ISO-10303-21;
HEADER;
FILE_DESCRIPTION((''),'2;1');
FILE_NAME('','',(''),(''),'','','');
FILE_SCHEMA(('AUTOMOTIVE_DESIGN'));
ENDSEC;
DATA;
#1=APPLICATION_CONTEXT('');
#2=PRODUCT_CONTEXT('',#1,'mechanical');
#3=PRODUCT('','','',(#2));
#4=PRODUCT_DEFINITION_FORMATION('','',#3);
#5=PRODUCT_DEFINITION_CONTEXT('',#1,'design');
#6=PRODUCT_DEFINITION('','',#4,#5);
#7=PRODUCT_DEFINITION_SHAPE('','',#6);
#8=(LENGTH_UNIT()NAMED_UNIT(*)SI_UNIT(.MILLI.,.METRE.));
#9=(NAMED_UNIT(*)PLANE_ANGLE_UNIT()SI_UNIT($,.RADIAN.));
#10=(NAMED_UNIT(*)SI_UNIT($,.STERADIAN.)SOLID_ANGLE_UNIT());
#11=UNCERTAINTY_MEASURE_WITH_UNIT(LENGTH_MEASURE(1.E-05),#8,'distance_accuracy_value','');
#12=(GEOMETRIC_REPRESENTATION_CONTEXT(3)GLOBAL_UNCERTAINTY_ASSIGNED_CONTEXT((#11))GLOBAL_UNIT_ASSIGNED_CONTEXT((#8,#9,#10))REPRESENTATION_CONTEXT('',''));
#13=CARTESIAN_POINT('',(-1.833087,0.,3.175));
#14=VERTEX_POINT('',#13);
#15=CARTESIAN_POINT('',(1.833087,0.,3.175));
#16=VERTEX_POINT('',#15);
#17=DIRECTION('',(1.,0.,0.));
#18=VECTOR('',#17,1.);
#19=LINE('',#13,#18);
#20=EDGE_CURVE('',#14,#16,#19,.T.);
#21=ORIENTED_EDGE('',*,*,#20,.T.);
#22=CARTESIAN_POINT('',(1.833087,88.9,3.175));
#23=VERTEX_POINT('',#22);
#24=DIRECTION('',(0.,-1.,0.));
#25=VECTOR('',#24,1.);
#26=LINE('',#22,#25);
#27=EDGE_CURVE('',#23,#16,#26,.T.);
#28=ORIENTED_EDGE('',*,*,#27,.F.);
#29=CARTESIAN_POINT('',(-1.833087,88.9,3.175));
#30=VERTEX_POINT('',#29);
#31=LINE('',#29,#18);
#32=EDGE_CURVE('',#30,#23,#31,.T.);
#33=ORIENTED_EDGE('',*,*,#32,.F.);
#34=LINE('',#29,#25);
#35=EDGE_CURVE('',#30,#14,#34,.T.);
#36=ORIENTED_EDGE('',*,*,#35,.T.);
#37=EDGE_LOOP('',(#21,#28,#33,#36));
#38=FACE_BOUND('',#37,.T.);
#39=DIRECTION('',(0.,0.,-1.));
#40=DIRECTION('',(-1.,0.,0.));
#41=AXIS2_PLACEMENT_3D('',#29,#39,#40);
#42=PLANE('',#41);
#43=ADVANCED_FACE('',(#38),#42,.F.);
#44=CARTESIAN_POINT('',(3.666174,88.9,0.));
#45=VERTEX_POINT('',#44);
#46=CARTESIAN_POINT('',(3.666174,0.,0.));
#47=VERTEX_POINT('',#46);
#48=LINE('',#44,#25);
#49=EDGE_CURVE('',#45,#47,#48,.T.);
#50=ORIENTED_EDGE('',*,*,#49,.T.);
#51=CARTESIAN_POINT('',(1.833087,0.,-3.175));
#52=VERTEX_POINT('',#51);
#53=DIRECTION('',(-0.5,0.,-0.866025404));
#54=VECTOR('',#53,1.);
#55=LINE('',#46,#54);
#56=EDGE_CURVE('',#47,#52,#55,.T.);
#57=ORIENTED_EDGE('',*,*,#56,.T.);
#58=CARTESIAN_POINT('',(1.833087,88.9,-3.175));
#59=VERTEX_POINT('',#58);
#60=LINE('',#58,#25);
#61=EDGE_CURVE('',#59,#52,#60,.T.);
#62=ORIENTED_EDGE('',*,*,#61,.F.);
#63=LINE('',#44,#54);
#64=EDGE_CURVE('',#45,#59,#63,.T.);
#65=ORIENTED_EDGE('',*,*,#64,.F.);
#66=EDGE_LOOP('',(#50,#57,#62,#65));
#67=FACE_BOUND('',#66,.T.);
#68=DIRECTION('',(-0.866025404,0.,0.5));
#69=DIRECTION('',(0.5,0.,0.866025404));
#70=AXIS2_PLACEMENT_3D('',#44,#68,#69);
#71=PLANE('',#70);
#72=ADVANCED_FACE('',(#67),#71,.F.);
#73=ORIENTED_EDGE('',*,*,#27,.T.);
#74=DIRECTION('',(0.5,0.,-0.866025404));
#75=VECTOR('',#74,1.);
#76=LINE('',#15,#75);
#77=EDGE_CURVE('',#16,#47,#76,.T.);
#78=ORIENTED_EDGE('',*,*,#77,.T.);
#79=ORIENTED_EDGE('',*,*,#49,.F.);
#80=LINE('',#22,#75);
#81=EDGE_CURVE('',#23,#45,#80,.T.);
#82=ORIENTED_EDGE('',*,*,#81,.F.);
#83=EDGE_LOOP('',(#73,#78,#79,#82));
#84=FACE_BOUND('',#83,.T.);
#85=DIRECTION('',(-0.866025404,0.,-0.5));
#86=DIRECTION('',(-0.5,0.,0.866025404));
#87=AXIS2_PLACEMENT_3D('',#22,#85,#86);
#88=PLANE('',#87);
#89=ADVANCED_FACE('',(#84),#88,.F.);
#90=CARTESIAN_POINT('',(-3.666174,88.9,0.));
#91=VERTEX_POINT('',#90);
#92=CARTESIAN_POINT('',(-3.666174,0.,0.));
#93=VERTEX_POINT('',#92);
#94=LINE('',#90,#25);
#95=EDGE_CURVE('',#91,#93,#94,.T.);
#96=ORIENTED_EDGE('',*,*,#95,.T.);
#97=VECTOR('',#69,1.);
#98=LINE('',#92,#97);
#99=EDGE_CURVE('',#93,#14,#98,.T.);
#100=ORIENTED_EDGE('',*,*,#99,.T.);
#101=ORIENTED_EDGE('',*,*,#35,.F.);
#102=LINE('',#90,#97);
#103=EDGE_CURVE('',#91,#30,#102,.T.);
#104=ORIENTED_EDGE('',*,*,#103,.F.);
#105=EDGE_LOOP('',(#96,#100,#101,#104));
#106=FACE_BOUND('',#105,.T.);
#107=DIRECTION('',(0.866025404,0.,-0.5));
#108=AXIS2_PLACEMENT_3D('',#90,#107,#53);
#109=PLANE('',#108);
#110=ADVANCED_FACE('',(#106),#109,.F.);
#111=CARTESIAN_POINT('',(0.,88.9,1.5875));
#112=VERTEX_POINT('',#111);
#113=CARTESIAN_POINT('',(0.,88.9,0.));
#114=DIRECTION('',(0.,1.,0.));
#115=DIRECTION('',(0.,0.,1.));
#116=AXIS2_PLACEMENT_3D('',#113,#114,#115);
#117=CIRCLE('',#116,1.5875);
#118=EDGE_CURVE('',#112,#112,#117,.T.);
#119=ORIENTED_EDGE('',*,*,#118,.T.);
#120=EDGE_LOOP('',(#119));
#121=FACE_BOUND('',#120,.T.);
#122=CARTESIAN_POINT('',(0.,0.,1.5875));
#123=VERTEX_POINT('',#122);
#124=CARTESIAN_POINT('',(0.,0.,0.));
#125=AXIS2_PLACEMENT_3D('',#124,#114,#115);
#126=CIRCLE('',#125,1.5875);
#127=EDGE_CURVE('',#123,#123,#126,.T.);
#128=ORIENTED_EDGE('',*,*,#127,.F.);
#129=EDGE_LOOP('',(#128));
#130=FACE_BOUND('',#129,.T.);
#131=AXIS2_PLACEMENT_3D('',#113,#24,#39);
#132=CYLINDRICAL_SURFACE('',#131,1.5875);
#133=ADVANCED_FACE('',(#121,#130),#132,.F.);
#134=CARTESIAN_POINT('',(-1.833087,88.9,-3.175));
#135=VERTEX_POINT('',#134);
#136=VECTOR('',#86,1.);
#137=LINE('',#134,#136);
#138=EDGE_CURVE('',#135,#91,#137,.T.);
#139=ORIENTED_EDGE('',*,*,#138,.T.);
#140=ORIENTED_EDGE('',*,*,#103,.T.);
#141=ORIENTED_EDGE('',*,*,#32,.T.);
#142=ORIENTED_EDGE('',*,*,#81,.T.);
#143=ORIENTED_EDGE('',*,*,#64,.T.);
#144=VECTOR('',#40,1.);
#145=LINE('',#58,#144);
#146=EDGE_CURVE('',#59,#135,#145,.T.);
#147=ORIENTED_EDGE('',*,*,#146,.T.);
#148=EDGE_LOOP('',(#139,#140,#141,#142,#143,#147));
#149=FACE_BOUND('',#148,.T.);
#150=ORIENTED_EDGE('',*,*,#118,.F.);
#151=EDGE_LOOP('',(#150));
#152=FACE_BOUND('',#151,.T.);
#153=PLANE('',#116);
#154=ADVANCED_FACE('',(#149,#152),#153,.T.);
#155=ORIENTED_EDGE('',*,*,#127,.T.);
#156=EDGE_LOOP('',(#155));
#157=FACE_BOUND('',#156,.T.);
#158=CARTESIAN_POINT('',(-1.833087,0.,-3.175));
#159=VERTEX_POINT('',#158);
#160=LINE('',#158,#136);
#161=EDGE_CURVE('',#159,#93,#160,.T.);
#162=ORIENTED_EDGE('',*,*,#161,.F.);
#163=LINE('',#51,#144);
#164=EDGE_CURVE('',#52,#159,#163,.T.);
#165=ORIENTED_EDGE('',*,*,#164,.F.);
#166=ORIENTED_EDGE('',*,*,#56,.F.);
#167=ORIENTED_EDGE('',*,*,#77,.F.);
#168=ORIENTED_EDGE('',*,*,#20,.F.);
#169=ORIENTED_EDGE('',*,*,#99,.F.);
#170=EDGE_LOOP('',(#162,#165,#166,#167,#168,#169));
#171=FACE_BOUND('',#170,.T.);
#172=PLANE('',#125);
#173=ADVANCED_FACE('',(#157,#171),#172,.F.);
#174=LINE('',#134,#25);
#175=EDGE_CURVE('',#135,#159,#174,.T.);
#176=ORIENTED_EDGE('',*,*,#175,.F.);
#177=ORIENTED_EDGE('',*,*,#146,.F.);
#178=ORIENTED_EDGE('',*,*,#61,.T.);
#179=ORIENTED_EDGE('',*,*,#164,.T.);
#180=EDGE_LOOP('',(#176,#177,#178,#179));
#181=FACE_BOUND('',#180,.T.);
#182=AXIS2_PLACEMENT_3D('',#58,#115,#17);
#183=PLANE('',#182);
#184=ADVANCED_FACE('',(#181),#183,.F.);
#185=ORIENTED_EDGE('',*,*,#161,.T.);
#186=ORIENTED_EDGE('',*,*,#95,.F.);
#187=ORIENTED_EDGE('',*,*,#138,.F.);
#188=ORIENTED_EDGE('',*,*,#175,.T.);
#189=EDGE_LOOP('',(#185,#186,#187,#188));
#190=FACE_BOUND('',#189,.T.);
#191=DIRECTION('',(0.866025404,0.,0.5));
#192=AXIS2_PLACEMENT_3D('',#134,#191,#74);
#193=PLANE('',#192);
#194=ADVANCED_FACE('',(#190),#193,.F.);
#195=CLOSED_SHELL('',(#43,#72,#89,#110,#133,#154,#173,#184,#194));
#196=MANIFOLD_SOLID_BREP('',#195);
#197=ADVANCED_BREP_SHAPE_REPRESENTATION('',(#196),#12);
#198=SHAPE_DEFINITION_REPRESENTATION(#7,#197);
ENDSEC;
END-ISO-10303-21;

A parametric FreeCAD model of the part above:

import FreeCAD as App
import Part
import Sketcher
from FreeCAD import Vector
Q = App.Units.Quantity

doc = App.newDocument("Part")
params = doc.addObject("Spreadsheet::Sheet", "Params")
for row, (alias, value) in enumerate([
    ("sketch1_diameter", "0.125 in"),
    ("pad1_length", "3.5 in"),
], start=1):
    params.set(f"A{row}", alias)
    params.set(f"B{row}", "=" + value)
    params.setAlias(f"B{row}", alias)

body = doc.addObject("PartDesign::Body", "Body")

# Sketch on XZ plane
sketch1 = body.newObject("Sketcher::SketchObject", "Sketch")
sketch1.AttachmentSupport = (doc.getObject("XZ_Plane"), [""])
sketch1.MapMode = "FlatFace"
sketch1.addGeometry(Part.LineSegment(Vector(1.8, -3.2, 0), Vector(-1.8, -3.2, 0)), False)
sketch1.addGeometry(Part.LineSegment(Vector(-1.8, -3.2, 0), Vector(-3.7, 0, 0)), False)
sketch1.addGeometry(Part.LineSegment(Vector(-3.7, 0, 0), Vector(-1.8, 3.2, 0)), False)
sketch1.addGeometry(Part.LineSegment(Vector(-1.8, 3.2, 0), Vector(1.8, 3.2, 0)), False)
sketch1.addGeometry(Part.LineSegment(Vector(1.8, 3.2, 0), Vector(3.7, 0, 0)), False)
sketch1.addGeometry(Part.LineSegment(Vector(3.7, 0, 0), Vector(1.8, -3.2, 0)), False)
sketch1.addGeometry(Part.Circle(Vector(0, 0, 0), Vector(0, 0, 1), 1.6), False)
sketch1.addConstraint(Sketcher.Constraint("Coincident", 0, 2, 1, 1))
sketch1.addConstraint(Sketcher.Constraint("Coincident", 1, 2, 2, 1))
sketch1.addConstraint(Sketcher.Constraint("Coincident", 2, 2, 3, 1))
sketch1.addConstraint(Sketcher.Constraint("Coincident", 3, 2, 4, 1))
sketch1.addConstraint(Sketcher.Constraint("Coincident", 4, 2, 5, 1))
sketch1.addConstraint(Sketcher.Constraint("Coincident", 5, 2, 0, 1))
sketch1.addConstraint(Sketcher.Constraint("Horizontal", 0))
sketch1.addConstraint(Sketcher.Constraint("Horizontal", 3))
sketch1.addConstraint(Sketcher.Constraint("Coincident", 6, 3, -1, 1))
sketch1.addConstraint(Sketcher.Constraint("Symmetric", 0, 2, 3, 2, -1, 1))
sketch1.addConstraint(Sketcher.Constraint("Symmetric", 1, 2, 4, 2, -1, 1))
sketch1.addConstraint(Sketcher.Constraint("PointOnObject", 1, 2, -1))
sketch1.addConstraint(Sketcher.Constraint("Parallel", 2, 5))
sketch1.addConstraint(Sketcher.Constraint("Vertical", 0, 2, 2, 2))
sketch1.addConstraint(Sketcher.Constraint("Diameter", 6, Q("0.125 in")))
sketch1.addConstraint(Sketcher.Constraint("Angle", 1, Q("120 deg")))
sketch1.addConstraint(Sketcher.Constraint("DistanceY", 0, 2, 2, 2, Q("0.25 in")))
sketch1.addConstraint(Sketcher.Constraint("DistanceX", 0, 2, 0, 1, Q("3.666174 mm")))
sketch1.setExpression("Constraints[14]", "Params.sketch1_diameter")
pad1 = body.newObject("PartDesign::Pad", "Pad")
pad1.Profile = sketch1
pad1.setExpression("Length", "Params.pad1_length")
pad1.Reversed = True

doc.recompute()
